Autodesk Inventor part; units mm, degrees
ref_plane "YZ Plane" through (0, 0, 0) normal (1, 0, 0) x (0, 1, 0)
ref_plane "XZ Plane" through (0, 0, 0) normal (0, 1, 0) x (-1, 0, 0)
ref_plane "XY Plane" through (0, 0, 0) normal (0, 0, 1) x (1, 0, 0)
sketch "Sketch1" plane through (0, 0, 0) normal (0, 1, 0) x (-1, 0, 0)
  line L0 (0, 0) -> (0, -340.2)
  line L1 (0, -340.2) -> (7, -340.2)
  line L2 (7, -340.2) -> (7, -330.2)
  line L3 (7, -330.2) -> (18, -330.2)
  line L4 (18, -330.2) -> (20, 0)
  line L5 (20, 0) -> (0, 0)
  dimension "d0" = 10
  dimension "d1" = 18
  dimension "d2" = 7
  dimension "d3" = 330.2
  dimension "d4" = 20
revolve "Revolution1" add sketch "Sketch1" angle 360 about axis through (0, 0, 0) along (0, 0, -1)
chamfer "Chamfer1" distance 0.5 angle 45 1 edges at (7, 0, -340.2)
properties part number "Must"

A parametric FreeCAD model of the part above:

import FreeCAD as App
import Part
import Sketcher


def edges_at(feature, points):
    """Names of the edges that pass closest to the given points."""
    edges = feature.Shape.Edges
    near = lambda p: min(range(len(edges)), key=lambda i: edges[i].distToShape(Part.Vertex(*p))[0])
    return sorted({f"Edge{near(p) + 1}" for p in points})

doc = App.newDocument("Part")
body = doc.addObject("PartDesign::Body", "Body")

# Sketch on XZ plane
sketch1 = body.newObject("Sketcher::SketchObject", "Sketch")
sketch1.AttachmentSupport = (doc.getObject("XZ_Plane"), [""])
sketch1.MapMode = "FlatFace"
sketch1.addGeometry([
    Part.LineSegment(App.Vector(-20, 0, 0), App.Vector(0, 0, 0)),  # 0
    Part.LineSegment(App.Vector(0, 0, 0), App.Vector(0, -340, 0)),  # 1
    Part.LineSegment(App.Vector(0, -340, 0), App.Vector(-7, -340, 0)),  # 2
    Part.LineSegment(App.Vector(-7, -340, 0), App.Vector(-7, -330, 0)),  # 3
    Part.LineSegment(App.Vector(-7, -330, 0), App.Vector(-18, -330, 0)),  # 4
    Part.LineSegment(App.Vector(-18, -330, 0), App.Vector(-20, 0, 0)),  # 5
], False)
sketch1.addConstraint([
    Sketcher.Constraint("Coincident", 0, 2, 1, 1),
    Sketcher.Constraint("Coincident", 1, 2, 2, 1),
    Sketcher.Constraint("Coincident", 2, 2, 3, 1),
    Sketcher.Constraint("Coincident", 3, 2, 4, 1),
    Sketcher.Constraint("Coincident", 4, 2, 5, 1),
    Sketcher.Constraint("Coincident", 5, 2, 0, 1),
    Sketcher.Constraint("Horizontal", 0),
    Sketcher.Constraint("Vertical", 1),
    Sketcher.Constraint("Horizontal", 2),
    Sketcher.Constraint("Vertical", 3),
    Sketcher.Constraint("Horizontal", 4),
    Sketcher.Constraint("Coincident", 0, 2, -1, 1),
    Sketcher.Constraint("DistanceX", 0, 1, 0, 2, 20.0),
    Sketcher.Constraint("DistanceX", 2, 2, 2, 1, 7.0),
    Sketcher.Constraint("DistanceY", 3, 1, 3, 2, 10.0),
    Sketcher.Constraint("DistanceX", 4, 2, -1, 1, 18.0),
    Sketcher.Constraint("DistanceY", 3, 2, -1, 1, 330.2),
])
revolution = body.newObject("PartDesign::Revolution", "Revolution")
revolution.Profile = sketch1
revolution.ReferenceAxis = (sketch1, ["V_Axis"])
revolution.Angle = 360
doc.recompute()

chamfer = body.newObject("PartDesign::Chamfer", "Chamfer")
chamfer.Base = (revolution, edges_at(revolution, [(7, 0, -340.2)]))
chamfer.Size = 0.5

doc.recompute()
